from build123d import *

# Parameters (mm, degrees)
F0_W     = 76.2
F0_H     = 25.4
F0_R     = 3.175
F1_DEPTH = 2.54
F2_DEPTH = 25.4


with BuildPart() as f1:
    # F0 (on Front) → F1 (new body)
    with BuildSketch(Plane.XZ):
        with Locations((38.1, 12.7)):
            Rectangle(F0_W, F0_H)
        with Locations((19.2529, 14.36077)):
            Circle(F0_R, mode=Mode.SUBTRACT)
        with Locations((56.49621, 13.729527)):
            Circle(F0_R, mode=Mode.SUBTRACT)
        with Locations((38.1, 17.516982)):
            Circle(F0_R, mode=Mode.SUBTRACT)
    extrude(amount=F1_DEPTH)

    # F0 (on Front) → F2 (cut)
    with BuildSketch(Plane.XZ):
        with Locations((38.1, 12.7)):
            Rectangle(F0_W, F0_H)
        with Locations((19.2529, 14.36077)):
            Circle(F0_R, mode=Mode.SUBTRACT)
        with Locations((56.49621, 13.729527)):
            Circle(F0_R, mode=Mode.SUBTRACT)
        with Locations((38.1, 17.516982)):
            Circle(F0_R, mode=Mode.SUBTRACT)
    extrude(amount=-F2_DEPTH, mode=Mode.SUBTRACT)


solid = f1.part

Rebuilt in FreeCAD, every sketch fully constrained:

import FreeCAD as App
import Part
import Sketcher
Q = App.Units.Quantity


def add_polygon(sketch, points):
    """Adds a closed chain of lines whose ends are joined by coincident constraints."""
    first, n = sketch.GeometryCount, len(points)
    for a, b in zip(points, points[1:] + points[:1]):
        sketch.addGeometry(Part.LineSegment(App.Vector(*a, 0), App.Vector(*b, 0)), False)
    for i in range(n):
        sketch.addConstraint(Sketcher.Constraint("Coincident", first + i, 2, first + (i + 1) % n, 1))

doc = App.newDocument("Part")
body = doc.addObject("PartDesign::Body", "Body")

# Sketch on XZ plane
sketch1 = body.newObject("Sketcher::SketchObject", "Sketch")
sketch1.AttachmentSupport = (doc.getObject("XZ_Plane"), [""])
sketch1.MapMode = "FlatFace"
add_polygon(sketch1, [(0, 25.4), (0, 0), (76.2, 0), (76.2, 25.4)])  # lines 0-3
sketch1.addGeometry(Part.Circle(App.Vector(19.3, 14.4, 0), App.Vector(0, 0, 1), 3.2), False)  # 4
sketch1.addGeometry(Part.Circle(App.Vector(56.5, 13.7, 0), App.Vector(0, 0, 1), 3.2), False)  # 5
sketch1.addGeometry(Part.Circle(App.Vector(38.1, 17.5, 0), App.Vector(0, 0, 1), 3.2), False)  # 6
sketch1.addConstraint([
    Sketcher.Constraint("Vertical", 0),
    Sketcher.Constraint("Horizontal", 1),
    Sketcher.Constraint("Vertical", 2),
    Sketcher.Constraint("Horizontal", 3),
    Sketcher.Constraint("Coincident", 0, 2, -1, 1),
    Sketcher.Constraint("Equal", 4, 5),
    Sketcher.Constraint("Equal", 5, 6),
    Sketcher.Constraint("Diameter", 4, Q("0.25 in")),
    Sketcher.Constraint("DistanceX", 1, 1, 1, 2, Q("3 in")),
    Sketcher.Constraint("DistanceY", 0, 2, 0, 1, Q("1 in")),
    Sketcher.Constraint("DistanceX", -1, 1, 6, 3, Q("1.5 in")),
    Sketcher.Constraint("DistanceX", -1, 1, 4, 3, Q("19.2529 mm")),
    Sketcher.Constraint("DistanceY", -1, 1, 4, 3, Q("14.36077 mm")),
    Sketcher.Constraint("DistanceX", -1, 1, 5, 3, Q("56.49621 mm")),
    Sketcher.Constraint("DistanceY", -1, 1, 6, 3, Q("17.516982 mm")),
    Sketcher.Constraint("DistanceY", -1, 1, 5, 3, Q("13.729527 mm")),
])
pad1 = body.newObject("PartDesign::Pad", "Pad")
pad1.Profile = sketch1
pad1.Length = Q("0.1 in")

# Sketch on XZ plane
sketch2 = body.newObject("Sketcher::SketchObject", "Sketch001")
sketch2.AttachmentSupport = (doc.getObject("XZ_Plane"), [""])
sketch2.MapMode = "FlatFace"
add_polygon(sketch2, [(0, 25.4), (0, 0), (76.2, 0), (76.2, 25.4)])  # lines 0-3
sketch2.addGeometry(Part.Circle(App.Vector(19.3, 14.4, 0), App.Vector(0, 0, 1), 3.2), False)  # 4
sketch2.addGeometry(Part.Circle(App.Vector(56.5, 13.7, 0), App.Vector(0, 0, 1), 3.2), False)  # 5
sketch2.addGeometry(Part.Circle(App.Vector(38.1, 17.5, 0), App.Vector(0, 0, 1), 3.2), False)  # 6
sketch2.addConstraint([
    Sketcher.Constraint("Vertical", 0),
    Sketcher.Constraint("Horizontal", 1),
    Sketcher.Constraint("Vertical", 2),
    Sketcher.Constraint("Horizontal", 3),
    Sketcher.Constraint("Coincident", 0, 2, -1, 1),
    Sketcher.Constraint("Equal", 4, 5),
    Sketcher.Constraint("Equal", 5, 6),
    Sketcher.Constraint("Diameter", 4, Q("0.25 in")),
    Sketcher.Constraint("DistanceX", 1, 1, 1, 2, Q("3 in")),
    Sketcher.Constraint("DistanceY", 0, 2, 0, 1, Q("1 in")),
    Sketcher.Constraint("DistanceX", -1, 1, 6, 3, Q("1.5 in")),
    Sketcher.Constraint("DistanceX", -1, 1, 4, 3, Q("19.2529 mm")),
    Sketcher.Constraint("DistanceY", -1, 1, 4, 3, Q("14.36077 mm")),
    Sketcher.Constraint("DistanceX", -1, 1, 5, 3, Q("56.49621 mm")),
    Sketcher.Constraint("DistanceY", -1, 1, 6, 3, Q("17.516982 mm")),
    Sketcher.Constraint("DistanceY", -1, 1, 5, 3, Q("13.729527 mm")),
])
pocket1 = body.newObject("PartDesign::Pocket", "Pocket")
pocket1.Profile = sketch2
pocket1.Length = Q("1 in")

doc.recompute()
